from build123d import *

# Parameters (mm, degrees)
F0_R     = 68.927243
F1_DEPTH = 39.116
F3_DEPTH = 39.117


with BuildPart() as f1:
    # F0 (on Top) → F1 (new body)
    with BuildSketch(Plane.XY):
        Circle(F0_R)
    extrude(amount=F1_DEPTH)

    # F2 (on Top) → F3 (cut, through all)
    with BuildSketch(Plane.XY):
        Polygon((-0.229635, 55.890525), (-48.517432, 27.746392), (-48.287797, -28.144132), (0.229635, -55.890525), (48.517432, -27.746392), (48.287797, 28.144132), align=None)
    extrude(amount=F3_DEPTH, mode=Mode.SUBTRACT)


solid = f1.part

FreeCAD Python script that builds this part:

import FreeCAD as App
import Part
import Sketcher
Q = App.Units.Quantity


def add_polygon(sketch, points):
    """Adds a closed chain of lines whose ends are joined by coincident constraints."""
    first, n = sketch.GeometryCount, len(points)
    for a, b in zip(points, points[1:] + points[:1]):
        sketch.addGeometry(Part.LineSegment(App.Vector(*a, 0), App.Vector(*b, 0)), False)
    for i in range(n):
        sketch.addConstraint(Sketcher.Constraint("Coincident", first + i, 2, first + (i + 1) % n, 1))

doc = App.newDocument("Part")
body = doc.addObject("PartDesign::Body", "Body")

# Sketch on XY plane
sketch1 = body.newObject("Sketcher::SketchObject", "Sketch")
sketch1.AttachmentSupport = (doc.getObject("XY_Plane"), [""])
sketch1.MapMode = "FlatFace"
sketch1.addGeometry(Part.Circle(App.Vector(0, 0, 0), App.Vector(0, 0, 1), 69), False)
sketch1.addConstraint([
    Sketcher.Constraint("Coincident", 0, 3, -1, 1),
    Sketcher.Constraint("Diameter", 0, 137.854486),
])
pad1 = body.newObject("PartDesign::Pad", "Pad")
pad1.Profile = sketch1
pad1.Length = Q("1.54 in")

# Sketch on XY plane
sketch2 = body.newObject("Sketcher::SketchObject", "Sketch001")
sketch2.AttachmentSupport = (doc.getObject("XY_Plane"), [""])
sketch2.MapMode = "FlatFace"
add_polygon(sketch2, [(0, 56), (-49, 28), (-48, -28), (0, -56), (49, -28), (48, 28)])  # lines 0-5
sketch2.addConstraint([
    Sketcher.Constraint("Symmetric", 0, 2, 3, 2, -1, 1),
    Sketcher.Constraint("Symmetric", 1, 2, 4, 2, -1, 1),
    Sketcher.Constraint("Symmetric", 2, 2, 5, 2, -1, 1),
    Sketcher.Constraint("Equal", 0, 1),
    Sketcher.Constraint("Equal", 1, 2),
    Sketcher.Constraint("DistanceY", -1, 1, 0, 2, 27.746392),
    Sketcher.Constraint("DistanceY", 1, 2, -1, 1, 28.144132),
    Sketcher.Constraint("DistanceX", 1, 2, 3, 2, 96.805229),
    Sketcher.Constraint("DistanceX", 2, 2, 4, 2, 48.058162),
])
pocket1 = body.newObject("PartDesign::Pocket", "Pocket")
pocket1.Profile = sketch2
pocket1.Type = "ThroughAll"
pocket1.Reversed = True

doc.recompute()
